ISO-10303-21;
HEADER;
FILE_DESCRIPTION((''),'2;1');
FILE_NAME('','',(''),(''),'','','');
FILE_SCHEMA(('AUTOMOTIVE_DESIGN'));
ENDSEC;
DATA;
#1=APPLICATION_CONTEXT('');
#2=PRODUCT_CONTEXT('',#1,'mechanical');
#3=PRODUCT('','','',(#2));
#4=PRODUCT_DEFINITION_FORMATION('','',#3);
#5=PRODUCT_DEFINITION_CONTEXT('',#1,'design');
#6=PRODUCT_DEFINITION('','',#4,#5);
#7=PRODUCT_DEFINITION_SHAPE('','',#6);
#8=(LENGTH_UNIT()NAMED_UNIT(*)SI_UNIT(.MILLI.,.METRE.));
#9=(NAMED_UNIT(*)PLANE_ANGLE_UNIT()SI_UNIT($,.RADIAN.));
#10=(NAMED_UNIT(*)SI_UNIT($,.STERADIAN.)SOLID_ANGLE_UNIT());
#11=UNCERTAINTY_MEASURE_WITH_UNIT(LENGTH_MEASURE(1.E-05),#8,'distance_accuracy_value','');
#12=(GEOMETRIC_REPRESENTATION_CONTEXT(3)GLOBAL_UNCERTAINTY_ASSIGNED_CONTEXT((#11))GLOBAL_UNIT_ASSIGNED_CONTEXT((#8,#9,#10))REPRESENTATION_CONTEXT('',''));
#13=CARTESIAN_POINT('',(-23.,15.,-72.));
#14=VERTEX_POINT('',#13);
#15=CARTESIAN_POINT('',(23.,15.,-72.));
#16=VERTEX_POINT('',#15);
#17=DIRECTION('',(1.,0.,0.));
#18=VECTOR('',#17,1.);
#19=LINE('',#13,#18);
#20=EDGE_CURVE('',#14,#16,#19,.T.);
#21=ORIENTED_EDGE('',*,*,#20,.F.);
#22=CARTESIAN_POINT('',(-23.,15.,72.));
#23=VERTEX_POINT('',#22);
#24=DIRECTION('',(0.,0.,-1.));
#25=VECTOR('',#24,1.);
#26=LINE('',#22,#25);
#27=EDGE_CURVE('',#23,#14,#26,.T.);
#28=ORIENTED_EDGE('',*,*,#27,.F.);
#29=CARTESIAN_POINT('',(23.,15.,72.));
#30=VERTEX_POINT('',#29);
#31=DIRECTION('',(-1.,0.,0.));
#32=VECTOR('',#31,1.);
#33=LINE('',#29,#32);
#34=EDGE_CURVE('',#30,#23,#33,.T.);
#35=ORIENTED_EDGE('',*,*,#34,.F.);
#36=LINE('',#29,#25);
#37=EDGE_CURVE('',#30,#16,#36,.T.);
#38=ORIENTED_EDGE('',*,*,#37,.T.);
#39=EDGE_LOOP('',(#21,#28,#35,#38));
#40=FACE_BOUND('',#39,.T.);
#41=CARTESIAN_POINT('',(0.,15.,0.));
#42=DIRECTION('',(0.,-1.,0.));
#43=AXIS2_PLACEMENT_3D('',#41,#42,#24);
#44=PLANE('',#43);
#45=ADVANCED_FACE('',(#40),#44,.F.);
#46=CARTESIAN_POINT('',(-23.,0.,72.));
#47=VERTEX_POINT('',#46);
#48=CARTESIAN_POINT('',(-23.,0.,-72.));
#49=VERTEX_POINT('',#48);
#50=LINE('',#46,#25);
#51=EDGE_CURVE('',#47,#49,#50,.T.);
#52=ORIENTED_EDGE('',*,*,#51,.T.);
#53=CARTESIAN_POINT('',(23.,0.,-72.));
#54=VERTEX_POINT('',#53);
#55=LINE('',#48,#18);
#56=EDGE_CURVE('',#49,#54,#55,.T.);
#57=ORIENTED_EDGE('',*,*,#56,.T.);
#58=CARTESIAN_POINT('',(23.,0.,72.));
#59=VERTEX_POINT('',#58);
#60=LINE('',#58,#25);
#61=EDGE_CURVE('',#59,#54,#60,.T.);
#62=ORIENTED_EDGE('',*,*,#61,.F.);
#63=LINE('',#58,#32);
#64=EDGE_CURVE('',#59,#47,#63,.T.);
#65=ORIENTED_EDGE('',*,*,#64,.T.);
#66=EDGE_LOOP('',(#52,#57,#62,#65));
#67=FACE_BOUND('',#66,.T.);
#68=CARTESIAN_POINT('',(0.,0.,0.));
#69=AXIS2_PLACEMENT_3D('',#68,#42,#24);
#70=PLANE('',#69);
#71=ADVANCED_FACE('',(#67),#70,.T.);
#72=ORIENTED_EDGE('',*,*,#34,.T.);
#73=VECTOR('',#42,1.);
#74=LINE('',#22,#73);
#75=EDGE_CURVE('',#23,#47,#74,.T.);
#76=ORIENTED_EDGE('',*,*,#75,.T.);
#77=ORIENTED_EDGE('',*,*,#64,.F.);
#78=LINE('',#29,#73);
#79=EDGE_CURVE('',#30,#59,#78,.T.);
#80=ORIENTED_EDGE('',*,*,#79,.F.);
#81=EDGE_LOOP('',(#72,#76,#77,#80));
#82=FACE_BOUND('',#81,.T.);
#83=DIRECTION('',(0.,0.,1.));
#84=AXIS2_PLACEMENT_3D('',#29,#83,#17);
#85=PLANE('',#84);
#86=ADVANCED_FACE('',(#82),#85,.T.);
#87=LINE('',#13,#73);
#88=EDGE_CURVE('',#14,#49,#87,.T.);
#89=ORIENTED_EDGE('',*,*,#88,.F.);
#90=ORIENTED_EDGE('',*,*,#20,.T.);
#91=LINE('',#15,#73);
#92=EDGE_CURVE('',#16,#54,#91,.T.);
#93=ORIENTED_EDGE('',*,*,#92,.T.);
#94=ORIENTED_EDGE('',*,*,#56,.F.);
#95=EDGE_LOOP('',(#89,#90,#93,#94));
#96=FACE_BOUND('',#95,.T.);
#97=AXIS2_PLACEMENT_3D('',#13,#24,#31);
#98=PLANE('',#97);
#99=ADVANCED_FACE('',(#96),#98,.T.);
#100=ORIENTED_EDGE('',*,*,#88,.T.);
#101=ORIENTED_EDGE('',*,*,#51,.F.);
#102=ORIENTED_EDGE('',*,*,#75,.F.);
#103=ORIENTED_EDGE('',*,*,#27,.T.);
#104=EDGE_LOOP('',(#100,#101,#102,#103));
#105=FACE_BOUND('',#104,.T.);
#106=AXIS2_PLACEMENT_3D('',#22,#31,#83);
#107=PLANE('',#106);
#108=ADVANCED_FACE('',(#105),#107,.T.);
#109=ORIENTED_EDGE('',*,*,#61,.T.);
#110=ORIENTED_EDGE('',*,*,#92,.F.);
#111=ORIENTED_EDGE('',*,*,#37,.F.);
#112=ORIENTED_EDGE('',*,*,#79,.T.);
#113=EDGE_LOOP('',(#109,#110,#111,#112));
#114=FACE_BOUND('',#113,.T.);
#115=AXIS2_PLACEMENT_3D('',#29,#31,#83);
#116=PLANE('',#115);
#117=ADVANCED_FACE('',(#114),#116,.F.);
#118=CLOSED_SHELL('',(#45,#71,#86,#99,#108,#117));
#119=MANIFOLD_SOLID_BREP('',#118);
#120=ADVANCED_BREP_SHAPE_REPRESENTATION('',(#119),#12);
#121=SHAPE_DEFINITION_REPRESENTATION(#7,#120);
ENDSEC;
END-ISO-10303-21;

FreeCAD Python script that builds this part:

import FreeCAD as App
import Part
import Sketcher
from FreeCAD import Vector
Q = App.Units.Quantity

doc = App.newDocument("Part")
body = doc.addObject("PartDesign::Body", "Body")

# Sketch on XZ plane
sketch1 = body.newObject("Sketcher::SketchObject", "Sketch")
sketch1.AttachmentSupport = (doc.getObject("XZ_Plane"), [""])
sketch1.MapMode = "FlatFace"
sketch1.addGeometry(Part.LineSegment(Vector(-23, -72, 0), Vector(-23, 72, 0)), False)
sketch1.addGeometry(Part.LineSegment(Vector(-23, 72, 0), Vector(23, 72, 0)), False)
sketch1.addGeometry(Part.LineSegment(Vector(23, 72, 0), Vector(23, -72, 0)), False)
sketch1.addGeometry(Part.LineSegment(Vector(23, -72, 0), Vector(-23, -72, 0)), False)
sketch1.addConstraint(Sketcher.Constraint("Coincident", 0, 2, 1, 1))
sketch1.addConstraint(Sketcher.Constraint("Coincident", 1, 2, 2, 1))
sketch1.addConstraint(Sketcher.Constraint("Coincident", 2, 2, 3, 1))
sketch1.addConstraint(Sketcher.Constraint("Coincident", 3, 2, 0, 1))
sketch1.addConstraint(Sketcher.Constraint("Vertical", 0))
sketch1.addConstraint(Sketcher.Constraint("Horizontal", 1))
sketch1.addConstraint(Sketcher.Constraint("Vertical", 2))
sketch1.addConstraint(Sketcher.Constraint("Horizontal", 3))
sketch1.addConstraint(Sketcher.Constraint("Symmetric", 0, 2, 2, 2, -1, 1))
sketch1.addConstraint(Sketcher.Constraint("DistanceX", 1, 1, 1, 2, Q("46 mm")))
sketch1.addConstraint(Sketcher.Constraint("DistanceY", 0, 1, 0, 2, Q("144 mm")))
pad1 = body.newObject("PartDesign::Pad", "Pad")
pad1.Profile = sketch1
pad1.Length = 15
pad1.Reversed = True

doc.recompute()
